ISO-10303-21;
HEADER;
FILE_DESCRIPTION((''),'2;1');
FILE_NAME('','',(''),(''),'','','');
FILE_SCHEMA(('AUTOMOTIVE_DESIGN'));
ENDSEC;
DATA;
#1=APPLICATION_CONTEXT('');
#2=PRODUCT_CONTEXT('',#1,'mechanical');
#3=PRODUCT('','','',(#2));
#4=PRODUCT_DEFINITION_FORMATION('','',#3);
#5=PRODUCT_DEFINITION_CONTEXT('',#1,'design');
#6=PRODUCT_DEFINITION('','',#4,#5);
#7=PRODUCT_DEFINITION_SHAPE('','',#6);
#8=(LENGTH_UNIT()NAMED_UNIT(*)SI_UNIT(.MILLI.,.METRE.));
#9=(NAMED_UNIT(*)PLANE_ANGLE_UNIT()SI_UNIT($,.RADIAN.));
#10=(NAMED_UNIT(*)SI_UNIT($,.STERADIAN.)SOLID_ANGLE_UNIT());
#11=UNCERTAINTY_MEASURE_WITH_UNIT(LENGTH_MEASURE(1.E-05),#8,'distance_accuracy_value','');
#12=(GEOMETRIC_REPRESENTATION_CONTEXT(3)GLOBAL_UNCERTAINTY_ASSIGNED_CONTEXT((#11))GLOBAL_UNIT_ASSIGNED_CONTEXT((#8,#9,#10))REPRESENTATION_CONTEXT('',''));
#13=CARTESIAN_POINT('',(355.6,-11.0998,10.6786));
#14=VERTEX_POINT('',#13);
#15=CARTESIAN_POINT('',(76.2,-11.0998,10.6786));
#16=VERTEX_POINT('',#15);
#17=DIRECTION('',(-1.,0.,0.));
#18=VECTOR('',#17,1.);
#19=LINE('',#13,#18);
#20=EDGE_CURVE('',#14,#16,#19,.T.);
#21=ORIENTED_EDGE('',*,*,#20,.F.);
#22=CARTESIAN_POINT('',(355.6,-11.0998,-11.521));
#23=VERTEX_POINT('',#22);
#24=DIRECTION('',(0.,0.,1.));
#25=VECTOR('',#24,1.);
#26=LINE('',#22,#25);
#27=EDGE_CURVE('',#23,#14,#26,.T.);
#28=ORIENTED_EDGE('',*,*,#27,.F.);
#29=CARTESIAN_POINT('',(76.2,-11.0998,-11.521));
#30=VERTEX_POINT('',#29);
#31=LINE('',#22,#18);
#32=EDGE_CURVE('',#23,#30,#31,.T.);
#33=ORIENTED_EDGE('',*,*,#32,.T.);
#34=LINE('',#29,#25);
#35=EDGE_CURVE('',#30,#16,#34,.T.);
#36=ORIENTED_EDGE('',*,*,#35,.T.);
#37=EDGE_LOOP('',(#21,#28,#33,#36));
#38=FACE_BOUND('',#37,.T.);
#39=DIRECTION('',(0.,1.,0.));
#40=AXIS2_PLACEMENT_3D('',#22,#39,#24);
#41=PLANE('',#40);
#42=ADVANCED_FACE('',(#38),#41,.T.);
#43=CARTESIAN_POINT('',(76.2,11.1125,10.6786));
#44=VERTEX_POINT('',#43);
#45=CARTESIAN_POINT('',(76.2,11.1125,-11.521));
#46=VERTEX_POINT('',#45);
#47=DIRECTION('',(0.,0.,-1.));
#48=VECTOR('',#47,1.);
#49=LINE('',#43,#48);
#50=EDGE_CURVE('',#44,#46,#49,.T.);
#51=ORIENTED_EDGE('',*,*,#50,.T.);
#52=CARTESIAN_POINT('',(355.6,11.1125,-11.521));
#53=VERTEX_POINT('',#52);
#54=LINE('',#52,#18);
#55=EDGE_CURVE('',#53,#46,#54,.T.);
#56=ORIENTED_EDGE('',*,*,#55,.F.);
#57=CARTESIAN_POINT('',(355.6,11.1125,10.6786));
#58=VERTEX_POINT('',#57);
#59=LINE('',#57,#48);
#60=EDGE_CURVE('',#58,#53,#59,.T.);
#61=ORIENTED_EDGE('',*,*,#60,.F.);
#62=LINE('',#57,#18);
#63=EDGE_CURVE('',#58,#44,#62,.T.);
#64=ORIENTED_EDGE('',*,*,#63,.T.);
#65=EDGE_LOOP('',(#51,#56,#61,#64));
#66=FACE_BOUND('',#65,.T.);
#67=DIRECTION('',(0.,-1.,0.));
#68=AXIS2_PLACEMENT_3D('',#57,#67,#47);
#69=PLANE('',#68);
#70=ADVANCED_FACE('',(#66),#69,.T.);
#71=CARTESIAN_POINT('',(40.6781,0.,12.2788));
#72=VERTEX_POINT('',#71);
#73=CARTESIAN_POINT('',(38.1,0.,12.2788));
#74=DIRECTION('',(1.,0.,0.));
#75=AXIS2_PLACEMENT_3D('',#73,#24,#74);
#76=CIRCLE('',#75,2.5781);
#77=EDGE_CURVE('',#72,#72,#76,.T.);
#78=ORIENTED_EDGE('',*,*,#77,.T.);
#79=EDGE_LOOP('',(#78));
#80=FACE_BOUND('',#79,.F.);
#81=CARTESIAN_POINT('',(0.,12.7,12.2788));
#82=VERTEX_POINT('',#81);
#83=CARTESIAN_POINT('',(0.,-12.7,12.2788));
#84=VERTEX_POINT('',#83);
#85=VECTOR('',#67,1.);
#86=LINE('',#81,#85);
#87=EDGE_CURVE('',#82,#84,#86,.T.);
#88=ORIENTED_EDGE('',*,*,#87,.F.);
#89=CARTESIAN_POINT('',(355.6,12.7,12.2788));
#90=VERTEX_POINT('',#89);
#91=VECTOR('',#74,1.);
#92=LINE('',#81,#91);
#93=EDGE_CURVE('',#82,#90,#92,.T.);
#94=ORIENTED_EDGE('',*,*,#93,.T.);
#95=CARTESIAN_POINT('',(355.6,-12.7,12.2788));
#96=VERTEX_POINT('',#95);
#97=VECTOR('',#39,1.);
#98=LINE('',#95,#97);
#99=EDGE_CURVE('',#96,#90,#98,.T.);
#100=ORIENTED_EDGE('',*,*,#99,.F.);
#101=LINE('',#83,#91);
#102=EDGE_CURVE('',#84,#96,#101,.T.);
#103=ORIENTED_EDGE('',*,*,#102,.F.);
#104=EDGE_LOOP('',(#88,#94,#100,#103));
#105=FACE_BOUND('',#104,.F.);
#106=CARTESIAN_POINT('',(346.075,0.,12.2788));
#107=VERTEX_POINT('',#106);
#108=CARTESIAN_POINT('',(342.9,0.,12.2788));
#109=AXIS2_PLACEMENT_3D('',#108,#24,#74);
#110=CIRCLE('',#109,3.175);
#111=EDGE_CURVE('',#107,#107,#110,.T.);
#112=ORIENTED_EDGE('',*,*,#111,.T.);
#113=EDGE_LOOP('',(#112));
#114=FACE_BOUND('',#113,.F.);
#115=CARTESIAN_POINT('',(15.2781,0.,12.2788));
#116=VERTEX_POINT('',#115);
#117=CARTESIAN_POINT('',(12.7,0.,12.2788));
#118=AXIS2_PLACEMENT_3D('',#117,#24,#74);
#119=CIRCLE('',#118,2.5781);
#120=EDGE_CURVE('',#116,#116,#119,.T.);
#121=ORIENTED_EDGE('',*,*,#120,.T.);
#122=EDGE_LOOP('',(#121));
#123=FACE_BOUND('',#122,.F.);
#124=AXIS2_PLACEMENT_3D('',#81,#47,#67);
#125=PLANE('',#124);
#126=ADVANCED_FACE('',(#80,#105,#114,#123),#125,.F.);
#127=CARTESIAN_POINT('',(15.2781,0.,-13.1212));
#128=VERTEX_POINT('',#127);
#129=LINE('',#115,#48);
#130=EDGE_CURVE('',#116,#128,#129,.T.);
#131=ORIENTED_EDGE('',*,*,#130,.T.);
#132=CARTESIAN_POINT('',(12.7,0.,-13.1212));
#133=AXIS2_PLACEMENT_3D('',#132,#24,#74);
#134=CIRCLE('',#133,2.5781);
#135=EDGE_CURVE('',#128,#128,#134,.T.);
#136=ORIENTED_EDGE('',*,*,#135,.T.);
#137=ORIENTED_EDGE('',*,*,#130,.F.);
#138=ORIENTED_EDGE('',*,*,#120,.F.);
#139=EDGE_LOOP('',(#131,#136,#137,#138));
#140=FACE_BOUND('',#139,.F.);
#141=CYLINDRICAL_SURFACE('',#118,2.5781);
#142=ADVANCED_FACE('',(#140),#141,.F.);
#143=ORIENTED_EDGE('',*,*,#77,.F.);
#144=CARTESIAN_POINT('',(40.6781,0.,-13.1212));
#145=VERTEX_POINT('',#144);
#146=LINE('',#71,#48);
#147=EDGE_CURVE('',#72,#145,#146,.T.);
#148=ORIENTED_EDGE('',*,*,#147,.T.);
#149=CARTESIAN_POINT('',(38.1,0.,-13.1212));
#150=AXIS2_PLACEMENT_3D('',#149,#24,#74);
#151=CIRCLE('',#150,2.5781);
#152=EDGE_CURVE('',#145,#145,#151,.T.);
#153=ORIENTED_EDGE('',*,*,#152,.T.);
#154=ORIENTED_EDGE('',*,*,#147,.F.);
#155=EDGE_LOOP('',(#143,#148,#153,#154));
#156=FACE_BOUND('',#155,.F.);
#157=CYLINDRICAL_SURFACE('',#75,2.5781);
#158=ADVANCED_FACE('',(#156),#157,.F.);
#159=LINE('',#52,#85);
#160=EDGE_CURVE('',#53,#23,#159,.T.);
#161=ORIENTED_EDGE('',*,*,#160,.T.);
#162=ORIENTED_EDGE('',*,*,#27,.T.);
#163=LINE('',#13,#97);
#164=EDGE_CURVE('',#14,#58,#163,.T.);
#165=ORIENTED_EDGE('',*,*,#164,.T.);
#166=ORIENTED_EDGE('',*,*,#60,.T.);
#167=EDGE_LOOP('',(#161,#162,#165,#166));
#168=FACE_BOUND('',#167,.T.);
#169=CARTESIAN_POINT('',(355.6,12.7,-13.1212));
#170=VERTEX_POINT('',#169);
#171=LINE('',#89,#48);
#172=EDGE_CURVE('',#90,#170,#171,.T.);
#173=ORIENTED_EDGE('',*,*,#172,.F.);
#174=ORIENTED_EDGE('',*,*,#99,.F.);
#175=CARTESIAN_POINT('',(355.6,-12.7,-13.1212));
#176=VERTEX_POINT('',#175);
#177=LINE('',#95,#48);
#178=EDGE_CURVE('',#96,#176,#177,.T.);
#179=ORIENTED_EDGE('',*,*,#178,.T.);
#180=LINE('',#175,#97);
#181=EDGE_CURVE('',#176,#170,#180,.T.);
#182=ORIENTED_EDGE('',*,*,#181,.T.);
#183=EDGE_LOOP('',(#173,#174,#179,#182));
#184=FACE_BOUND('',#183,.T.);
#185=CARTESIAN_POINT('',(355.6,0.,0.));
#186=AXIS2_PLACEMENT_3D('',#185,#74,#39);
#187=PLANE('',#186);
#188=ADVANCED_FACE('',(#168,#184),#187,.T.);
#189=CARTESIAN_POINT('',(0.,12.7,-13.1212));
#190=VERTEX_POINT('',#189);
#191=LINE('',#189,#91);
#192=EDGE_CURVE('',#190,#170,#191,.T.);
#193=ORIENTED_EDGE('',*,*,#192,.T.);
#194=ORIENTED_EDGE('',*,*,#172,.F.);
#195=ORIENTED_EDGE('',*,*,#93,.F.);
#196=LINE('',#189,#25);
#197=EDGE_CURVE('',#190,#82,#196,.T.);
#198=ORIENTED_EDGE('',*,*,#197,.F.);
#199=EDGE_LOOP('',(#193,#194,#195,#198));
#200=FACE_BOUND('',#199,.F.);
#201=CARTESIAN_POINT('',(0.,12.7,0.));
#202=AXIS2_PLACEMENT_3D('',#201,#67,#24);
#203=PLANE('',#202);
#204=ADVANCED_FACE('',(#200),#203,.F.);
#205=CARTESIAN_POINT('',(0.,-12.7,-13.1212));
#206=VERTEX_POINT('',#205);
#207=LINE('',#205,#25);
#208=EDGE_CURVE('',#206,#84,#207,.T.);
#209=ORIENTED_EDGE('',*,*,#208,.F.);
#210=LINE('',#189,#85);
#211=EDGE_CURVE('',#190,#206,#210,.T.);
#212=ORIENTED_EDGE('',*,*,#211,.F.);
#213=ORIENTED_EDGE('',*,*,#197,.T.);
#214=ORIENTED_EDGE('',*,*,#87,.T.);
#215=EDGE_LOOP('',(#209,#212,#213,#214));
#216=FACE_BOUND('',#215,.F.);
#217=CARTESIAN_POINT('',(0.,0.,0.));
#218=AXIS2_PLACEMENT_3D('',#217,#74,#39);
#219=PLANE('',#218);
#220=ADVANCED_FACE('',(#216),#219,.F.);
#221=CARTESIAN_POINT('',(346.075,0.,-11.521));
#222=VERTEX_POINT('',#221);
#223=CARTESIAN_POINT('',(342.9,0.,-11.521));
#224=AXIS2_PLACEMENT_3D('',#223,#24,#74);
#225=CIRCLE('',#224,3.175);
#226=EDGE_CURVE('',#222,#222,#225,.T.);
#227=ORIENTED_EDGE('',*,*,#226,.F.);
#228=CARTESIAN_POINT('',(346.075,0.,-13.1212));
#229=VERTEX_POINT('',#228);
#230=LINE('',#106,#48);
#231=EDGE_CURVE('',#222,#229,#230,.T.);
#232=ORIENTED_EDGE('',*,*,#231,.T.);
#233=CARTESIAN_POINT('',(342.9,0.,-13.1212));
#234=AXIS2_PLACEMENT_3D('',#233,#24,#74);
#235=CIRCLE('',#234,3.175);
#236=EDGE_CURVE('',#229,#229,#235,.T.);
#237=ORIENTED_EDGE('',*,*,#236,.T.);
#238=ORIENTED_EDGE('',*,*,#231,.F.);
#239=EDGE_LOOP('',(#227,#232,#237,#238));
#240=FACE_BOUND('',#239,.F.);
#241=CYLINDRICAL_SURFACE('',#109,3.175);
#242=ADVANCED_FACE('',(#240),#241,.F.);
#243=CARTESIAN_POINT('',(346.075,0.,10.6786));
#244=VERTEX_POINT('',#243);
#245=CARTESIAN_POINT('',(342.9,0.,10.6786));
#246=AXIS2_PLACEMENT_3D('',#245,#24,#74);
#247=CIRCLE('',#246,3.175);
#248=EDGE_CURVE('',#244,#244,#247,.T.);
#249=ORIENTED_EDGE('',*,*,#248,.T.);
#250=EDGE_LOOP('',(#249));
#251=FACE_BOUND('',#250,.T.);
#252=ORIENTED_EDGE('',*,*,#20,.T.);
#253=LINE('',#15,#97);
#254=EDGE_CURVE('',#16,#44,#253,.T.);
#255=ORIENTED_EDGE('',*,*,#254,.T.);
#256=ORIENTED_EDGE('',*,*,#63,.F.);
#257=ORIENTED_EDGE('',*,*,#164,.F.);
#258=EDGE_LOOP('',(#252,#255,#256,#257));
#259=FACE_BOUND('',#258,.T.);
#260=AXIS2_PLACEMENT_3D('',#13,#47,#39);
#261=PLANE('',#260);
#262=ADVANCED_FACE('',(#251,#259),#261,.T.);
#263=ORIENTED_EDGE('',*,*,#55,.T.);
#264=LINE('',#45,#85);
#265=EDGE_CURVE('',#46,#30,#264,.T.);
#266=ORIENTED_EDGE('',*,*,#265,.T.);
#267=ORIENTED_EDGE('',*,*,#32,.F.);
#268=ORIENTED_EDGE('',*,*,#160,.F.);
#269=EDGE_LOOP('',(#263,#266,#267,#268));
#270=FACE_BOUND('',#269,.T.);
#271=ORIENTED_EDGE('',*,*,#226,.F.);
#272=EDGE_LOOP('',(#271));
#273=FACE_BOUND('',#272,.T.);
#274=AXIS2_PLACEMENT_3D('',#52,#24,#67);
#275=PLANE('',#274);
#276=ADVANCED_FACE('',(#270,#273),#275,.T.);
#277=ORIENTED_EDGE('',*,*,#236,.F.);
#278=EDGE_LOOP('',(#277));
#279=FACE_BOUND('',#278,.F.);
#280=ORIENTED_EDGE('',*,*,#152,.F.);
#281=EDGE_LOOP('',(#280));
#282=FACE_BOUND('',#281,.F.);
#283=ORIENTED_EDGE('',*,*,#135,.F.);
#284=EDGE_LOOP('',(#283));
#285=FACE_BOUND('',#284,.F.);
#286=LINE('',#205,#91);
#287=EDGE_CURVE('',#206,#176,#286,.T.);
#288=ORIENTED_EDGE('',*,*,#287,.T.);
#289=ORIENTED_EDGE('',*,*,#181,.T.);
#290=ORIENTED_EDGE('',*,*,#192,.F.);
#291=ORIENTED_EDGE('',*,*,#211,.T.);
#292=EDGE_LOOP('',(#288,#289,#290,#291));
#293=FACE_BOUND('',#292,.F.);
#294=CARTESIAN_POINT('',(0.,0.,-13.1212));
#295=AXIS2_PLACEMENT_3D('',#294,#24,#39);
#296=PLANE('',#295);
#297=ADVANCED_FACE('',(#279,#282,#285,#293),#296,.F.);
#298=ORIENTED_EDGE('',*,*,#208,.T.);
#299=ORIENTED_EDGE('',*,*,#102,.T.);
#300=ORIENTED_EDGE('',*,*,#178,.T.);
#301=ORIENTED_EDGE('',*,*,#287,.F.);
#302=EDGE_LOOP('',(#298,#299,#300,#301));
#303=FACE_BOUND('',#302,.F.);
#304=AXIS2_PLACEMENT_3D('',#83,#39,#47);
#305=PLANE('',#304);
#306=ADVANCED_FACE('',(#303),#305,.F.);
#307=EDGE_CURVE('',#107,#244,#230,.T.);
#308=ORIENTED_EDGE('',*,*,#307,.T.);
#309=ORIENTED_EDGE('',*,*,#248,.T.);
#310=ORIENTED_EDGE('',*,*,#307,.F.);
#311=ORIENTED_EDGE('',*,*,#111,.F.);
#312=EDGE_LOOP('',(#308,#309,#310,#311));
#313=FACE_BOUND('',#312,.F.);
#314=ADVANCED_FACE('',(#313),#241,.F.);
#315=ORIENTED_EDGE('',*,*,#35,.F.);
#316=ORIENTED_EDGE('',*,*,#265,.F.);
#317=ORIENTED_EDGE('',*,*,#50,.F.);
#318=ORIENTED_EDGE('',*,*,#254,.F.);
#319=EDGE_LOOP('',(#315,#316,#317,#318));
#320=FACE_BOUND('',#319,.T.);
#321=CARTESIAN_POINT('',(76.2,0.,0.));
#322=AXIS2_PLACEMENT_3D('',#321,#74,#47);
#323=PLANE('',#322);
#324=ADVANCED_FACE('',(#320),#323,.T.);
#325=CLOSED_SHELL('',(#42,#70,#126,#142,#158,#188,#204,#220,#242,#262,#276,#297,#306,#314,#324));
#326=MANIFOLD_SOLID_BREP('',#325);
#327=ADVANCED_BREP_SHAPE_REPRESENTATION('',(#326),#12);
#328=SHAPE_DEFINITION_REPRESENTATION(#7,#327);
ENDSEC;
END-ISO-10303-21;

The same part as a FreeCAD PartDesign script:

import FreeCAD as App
import Part
import Sketcher

V = App.Vector
Q = App.Units.Quantity


def add_polygon(sketch, points):
    """Adds a closed chain of lines whose ends are joined by coincident constraints."""
    first, n = sketch.GeometryCount, len(points)
    for a, b in zip(points, points[1:] + points[:1]):
        sketch.addGeometry(Part.LineSegment(App.Vector(*a, 0), App.Vector(*b, 0)), False)
    for i in range(n):
        sketch.addConstraint(Sketcher.Constraint("Coincident", first + i, 2, first + (i + 1) % n, 1))

doc = App.newDocument("Part")
body = doc.addObject("PartDesign::Body", "Body")

sketch1 = body.newObject("Sketcher::SketchObject", "Sketch")
sketch1.AttachmentSupport = (doc.getObject("YZ_Plane"), [""])
sketch1.MapMode = "FlatFace"
add_polygon(sketch1, [(13, 12), (-13, 12), (-13, -13), (13, -13)])
sketch1.addConstraint([
    Sketcher.Constraint("Horizontal", 0),
    Sketcher.Constraint("Vertical", 1),
    Sketcher.Constraint("Horizontal", 2),
    Sketcher.Constraint("Vertical", 3),
    Sketcher.Constraint("Equal", 2, 1),
    Sketcher.Constraint("DistanceX", 0, 2, 0, 1, Q("1 in")),
    Sketcher.Constraint("DistanceX", 0, 2, -1, 1, Q("0.5 in")),
    Sketcher.Constraint("DistanceY", -1, 1, 0, 2, Q("12.2788 mm")),
])
pad1 = body.newObject("PartDesign::Pad", "Pad")
pad1.Profile = sketch1
pad1.Length = Q("14 in")

sketch2 = body.newObject("Sketcher::SketchObject", "Sketch001")
sketch2.AttachmentSupport = (doc.getObject("YZ_Plane"), [""])
sketch2.MapMode = "FlatFace"
sketch2.AttachmentOffset = App.Placement(V(0, 0, 14 * 25.4), App.Rotation())
add_polygon(sketch2, [(11, -12), (11, 11), (-11, 11), (-11, -12)])
sketch2.addConstraint([
    Sketcher.Constraint("Vertical", 0),
    Sketcher.Constraint("Horizontal", 1),
    Sketcher.Constraint("Vertical", 2),
    Sketcher.Constraint("Horizontal", 3),
    Sketcher.Constraint("DistanceY", 0, 1, 0, 2, Q("0.874 in")),
    Sketcher.Constraint("DistanceX", 1, 2, 1, 1, Q("0.8745 in")),
    Sketcher.Constraint("DistanceX", -1, 1, 0, 2, Q("0.4375 in")),
    Sketcher.Constraint("DistanceY", -1, 1, 0, 2, Q("10.6786 mm")),
])
pocket1 = body.newObject("PartDesign::Pocket", "Pocket")
pocket1.Profile = sketch2
pocket1.Length = Q("11 in")

sketch3 = body.newObject("Sketcher::SketchObject", "Sketch002")
sketch3.AttachmentSupport = (doc.getObject("XY_Plane"), [""])
sketch3.MapMode = "FlatFace"
sketch3.AttachmentOffset = App.Placement(V(0, 0, 12.2788), App.Rotation())
sketch3.addGeometry([
    Part.Circle(V(342.9, 0, 0), V(0, 0, 1), 3.2),
    Part.Circle(V(12.7, 0, 0), V(0, 0, 1), 2.6),
    Part.Circle(V(38.1, 0, 0), V(0, 0, 1), 2.6),
], False)
sketch3.addConstraint([
    Sketcher.Constraint("Equal", 1, 2),
    Sketcher.Constraint("PointOnObject", 0, 3, -1),
    Sketcher.Constraint("PointOnObject", 1, 3, -1),
    Sketcher.Constraint("PointOnObject", 2, 3, -1),
    Sketcher.Constraint("Diameter", 0, Q("0.25 in")),
    Sketcher.Constraint("Diameter", 1, Q("0.203 in")),
    Sketcher.Constraint("DistanceX", 1, 3, 2, 3, Q("1 in")),
    Sketcher.Constraint("DistanceX", -1, 1, 1, 3, Q("0.5 in")),
    Sketcher.Constraint("DistanceX", 1, 3, 0, 3, Q("13 in")),
])
pocket2 = body.newObject("PartDesign::Pocket", "Pocket001")
pocket2.Profile = sketch3
pocket2.Length = Q("1 in")

doc.recompute()
